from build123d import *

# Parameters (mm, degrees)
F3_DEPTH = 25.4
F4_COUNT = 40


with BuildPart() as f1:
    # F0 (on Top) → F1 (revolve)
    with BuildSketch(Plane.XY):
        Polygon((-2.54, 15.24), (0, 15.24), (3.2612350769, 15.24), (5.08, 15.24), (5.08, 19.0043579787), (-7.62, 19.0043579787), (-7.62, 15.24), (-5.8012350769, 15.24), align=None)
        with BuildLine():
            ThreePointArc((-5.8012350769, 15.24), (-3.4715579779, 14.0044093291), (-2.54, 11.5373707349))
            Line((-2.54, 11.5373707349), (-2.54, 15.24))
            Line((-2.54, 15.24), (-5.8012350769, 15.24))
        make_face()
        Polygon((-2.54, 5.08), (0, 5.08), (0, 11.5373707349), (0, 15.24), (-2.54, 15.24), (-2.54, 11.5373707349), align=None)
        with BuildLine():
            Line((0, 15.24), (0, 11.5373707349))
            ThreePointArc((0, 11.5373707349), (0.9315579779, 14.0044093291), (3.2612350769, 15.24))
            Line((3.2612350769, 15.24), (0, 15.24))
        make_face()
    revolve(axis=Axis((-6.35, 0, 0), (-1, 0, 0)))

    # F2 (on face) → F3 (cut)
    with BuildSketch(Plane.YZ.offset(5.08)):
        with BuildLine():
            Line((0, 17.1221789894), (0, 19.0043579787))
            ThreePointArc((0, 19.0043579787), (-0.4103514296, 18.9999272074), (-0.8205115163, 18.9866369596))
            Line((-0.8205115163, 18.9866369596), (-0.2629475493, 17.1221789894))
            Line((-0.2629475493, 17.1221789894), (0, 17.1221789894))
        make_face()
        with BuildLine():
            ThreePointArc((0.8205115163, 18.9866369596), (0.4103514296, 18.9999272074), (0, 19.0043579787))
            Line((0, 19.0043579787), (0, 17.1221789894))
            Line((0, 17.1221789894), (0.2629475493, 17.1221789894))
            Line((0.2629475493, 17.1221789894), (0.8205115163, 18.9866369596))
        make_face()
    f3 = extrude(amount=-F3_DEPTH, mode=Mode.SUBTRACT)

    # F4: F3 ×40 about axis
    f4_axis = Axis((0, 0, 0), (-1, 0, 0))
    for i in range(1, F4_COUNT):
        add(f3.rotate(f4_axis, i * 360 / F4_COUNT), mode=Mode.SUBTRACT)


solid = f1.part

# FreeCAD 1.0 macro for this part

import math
import FreeCAD as App
import Part
import Sketcher
from FreeCAD import Vector
Q = App.Units.Quantity

doc = App.newDocument("Part")
params = doc.addObject("Spreadsheet::Sheet", "Params")
for row, (alias, value) in enumerate([
    ("sketch1_width", "0.5 in"),
    ("sketch1_width2", "0.1 in"),
    ("revolution_angle", "360 deg"),
    ("pocket1_length", "1 in"),
], start=1):
    params.set(f"A{row}", alias)
    params.set(f"B{row}", "=" + value)
    params.setAlias(f"B{row}", alias)

body = doc.addObject("PartDesign::Body", "Body")

sketch1 = body.newObject("Sketcher::SketchObject", "Sketch")
sketch1.AttachmentSupport = (doc.getObject("XY_Plane"), [""])
sketch1.MapMode = "FlatFace"
sketch1.addGeometry(Part.LineSegment(Vector(5.1, 15.2, 0), Vector(5.1, 19, 0)), False)
sketch1.addGeometry(Part.LineSegment(Vector(5.1, 19, 0), Vector(-7.6, 19, 0)), False)
sketch1.addGeometry(Part.LineSegment(Vector(-7.6, 19, 0), Vector(-7.6, 15.2, 0)), False)
sketch1.addGeometry(Part.LineSegment(Vector(-7.6, 15.2, 0), Vector(-5.8, 15.2, 0)), False)
sketch1.addGeometry(Part.ArcOfCircle(Part.Circle(Vector(-6.3, 11.5, 0), Vector(0, 0, 1), 3.7), math.radians(0), math.radians(83)), False)
sketch1.addGeometry(Part.LineSegment(Vector(-2.5, 11.5, 0), Vector(-2.5, 5.1, 0)), False)
sketch1.addGeometry(Part.LineSegment(Vector(-2.5, 5.1, 0), Vector(0, 5.1, 0)), False)
sketch1.addGeometry(Part.LineSegment(Vector(0, 5.1, 0), Vector(0, 11.5, 0)), False)
sketch1.addGeometry(Part.ArcOfCircle(Part.Circle(Vector(3.7, 11.5, 0), Vector(0, 0, 1), 3.7), math.radians(97), math.radians(180)), False)
sketch1.addGeometry(Part.LineSegment(Vector(3.3, 15.2, 0), Vector(5.1, 15.2, 0)), False)
sketch1.addConstraint(Sketcher.Constraint("Coincident", 0, 2, 1, 1))
sketch1.addConstraint(Sketcher.Constraint("Coincident", 1, 2, 2, 1))
sketch1.addConstraint(Sketcher.Constraint("Coincident", 2, 2, 3, 1))
sketch1.addConstraint(Sketcher.Constraint("Coincident", 3, 2, 4, 2))
sketch1.addConstraint(Sketcher.Constraint("Tangent", 4, 1, 5, 1))
sketch1.addConstraint(Sketcher.Constraint("Coincident", 5, 2, 6, 1))
sketch1.addConstraint(Sketcher.Constraint("Coincident", 6, 2, 7, 1))
sketch1.addConstraint(Sketcher.Constraint("Tangent", 7, 2, 8, 2))
sketch1.addConstraint(Sketcher.Constraint("Coincident", 8, 1, 9, 1))
sketch1.addConstraint(Sketcher.Constraint("Coincident", 9, 2, 0, 1))
sketch1.addConstraint(Sketcher.Constraint("Vertical", 0))
sketch1.addConstraint(Sketcher.Constraint("Horizontal", 1))
sketch1.addConstraint(Sketcher.Constraint("Vertical", 2))
sketch1.addConstraint(Sketcher.Constraint("Horizontal", 3))
sketch1.addConstraint(Sketcher.Constraint("Vertical", 5))
sketch1.addConstraint(Sketcher.Constraint("Horizontal", 6))
sketch1.addConstraint(Sketcher.Constraint("Vertical", 7))
sketch1.addConstraint(Sketcher.Constraint("Horizontal", 9))
sketch1.addConstraint(Sketcher.Constraint("Equal", 4, 8))
sketch1.addConstraint(Sketcher.Constraint("PointOnObject", 6, 2, -2))
sketch1.addConstraint(Sketcher.Constraint("Horizontal", 4, 3, 8, 3))
sketch1.addConstraint(Sketcher.Constraint("Horizontal", 3, 2, 8, 1))
sketch1.addConstraint(Sketcher.Constraint("Equal", 3, 9))
sketch1.addConstraint(Sketcher.Constraint("DistanceX", 1, 2, 1, 1, Q("0.5 in")))
sketch1.addConstraint(Sketcher.Constraint("DistanceX", 6, 1, 6, 2, Q("0.1 in")))
sketch1.addConstraint(Sketcher.Constraint("DistanceY", -1, 1, 2, 2, Q("0.6 in")))
sketch1.addConstraint(Sketcher.Constraint("DistanceY", -1, 1, 5, 2, Q("0.2 in")))
sketch1.addConstraint(Sketcher.Constraint("Radius", 4, 3.7325))
sketch1.addConstraint(Sketcher.Constraint("DistanceY", 5, 2, 5, 1, 6.457371))
sketch1.addConstraint(Sketcher.Constraint("DistanceY", 0, 1, 0, 2, 3.764358))
sketch1.setExpression("Constraints[23]", "Params.sketch1_width")
sketch1.setExpression("Constraints[24]", "Params.sketch1_width2")
revolution = body.newObject("PartDesign::Revolution", "Revolution")
revolution.Profile = sketch1
revolution.ReferenceAxis = (sketch1, ["H_Axis"])
revolution.setExpression("Angle", "Params.revolution_angle")

sketch2 = body.newObject("Sketcher::SketchObject", "Sketch001")
sketch2.AttachmentSupport = (doc.getObject("YZ_Plane"), [""])
sketch2.MapMode = "FlatFace"
sketch2.AttachmentOffset = App.Placement(Vector(0, 0, 0.2 * 25.4), App.Rotation())
sketch2.addGeometry(Part.ArcOfCircle(Part.Circle(Vector(0, 0, 0), Vector(0, 0, 1), 19), math.radians(90), math.radians(92.47)), False)
sketch2.addGeometry(Part.LineSegment(Vector(-0.8, 19, 0), Vector(-0.3, 17.1, 0)), False)
sketch2.addGeometry(Part.LineSegment(Vector(-0.3, 17.1, 0), Vector(0.3, 17.1, 0)), False)
sketch2.addGeometry(Part.LineSegment(Vector(0.3, 17.1, 0), Vector(0.8, 19, 0)), False)
sketch2.addGeometry(Part.ArcOfCircle(Part.Circle(Vector(0, 0, 0), Vector(0, 0, 1), 19), math.radians(87.53), math.radians(90)), False)
sketch2.addConstraint(Sketcher.Constraint("Coincident", 0, 2, 1, 1))
sketch2.addConstraint(Sketcher.Constraint("Coincident", 1, 2, 2, 1))
sketch2.addConstraint(Sketcher.Constraint("Coincident", 2, 2, 3, 1))
sketch2.addConstraint(Sketcher.Constraint("Coincident", 3, 2, 4, 1))
sketch2.addConstraint(Sketcher.Constraint("Tangent", 4, 2, 0, 1))
sketch2.addConstraint(Sketcher.Constraint("Horizontal", 2))
sketch2.addConstraint(Sketcher.Constraint("Coincident", 0, 3, -1, 1))
sketch2.addConstraint(Sketcher.Constraint("Equal", 0, 4))
sketch2.addConstraint(Sketcher.Constraint("PointOnObject", 4, 2, -2))
sketch2.addConstraint(Sketcher.Constraint("Horizontal", 0, 2, 3, 2))
sketch2.addConstraint(Sketcher.Constraint("Equal", 1, 3))
sketch2.addConstraint(Sketcher.Constraint("Radius", 0, 19.004358))
sketch2.addConstraint(Sketcher.Constraint("DistanceX", 2, 1, 2, 2, 0.525895))
sketch2.addConstraint(Sketcher.Constraint("DistanceX", 0, 2, -1, 1, 0.820512))
sketch2.addConstraint(Sketcher.Constraint("DistanceY", -1, 1, 1, 2, 17.122179))
pocket1 = body.newObject("PartDesign::Pocket", "Pocket")
pocket1.Profile = sketch2
pocket1.setExpression("Length", "Params.pocket1_length")
doc.recompute()

polarpattern = body.newObject("PartDesign::PolarPattern", "PolarPattern")
polarpattern.Originals = [pocket1]
polarpattern.Axis = (doc.getObject("X_Axis"), [""])
polarpattern.Angle = 360
polarpattern.Occurrences = 40
body.Tip = polarpattern

doc.recompute()
